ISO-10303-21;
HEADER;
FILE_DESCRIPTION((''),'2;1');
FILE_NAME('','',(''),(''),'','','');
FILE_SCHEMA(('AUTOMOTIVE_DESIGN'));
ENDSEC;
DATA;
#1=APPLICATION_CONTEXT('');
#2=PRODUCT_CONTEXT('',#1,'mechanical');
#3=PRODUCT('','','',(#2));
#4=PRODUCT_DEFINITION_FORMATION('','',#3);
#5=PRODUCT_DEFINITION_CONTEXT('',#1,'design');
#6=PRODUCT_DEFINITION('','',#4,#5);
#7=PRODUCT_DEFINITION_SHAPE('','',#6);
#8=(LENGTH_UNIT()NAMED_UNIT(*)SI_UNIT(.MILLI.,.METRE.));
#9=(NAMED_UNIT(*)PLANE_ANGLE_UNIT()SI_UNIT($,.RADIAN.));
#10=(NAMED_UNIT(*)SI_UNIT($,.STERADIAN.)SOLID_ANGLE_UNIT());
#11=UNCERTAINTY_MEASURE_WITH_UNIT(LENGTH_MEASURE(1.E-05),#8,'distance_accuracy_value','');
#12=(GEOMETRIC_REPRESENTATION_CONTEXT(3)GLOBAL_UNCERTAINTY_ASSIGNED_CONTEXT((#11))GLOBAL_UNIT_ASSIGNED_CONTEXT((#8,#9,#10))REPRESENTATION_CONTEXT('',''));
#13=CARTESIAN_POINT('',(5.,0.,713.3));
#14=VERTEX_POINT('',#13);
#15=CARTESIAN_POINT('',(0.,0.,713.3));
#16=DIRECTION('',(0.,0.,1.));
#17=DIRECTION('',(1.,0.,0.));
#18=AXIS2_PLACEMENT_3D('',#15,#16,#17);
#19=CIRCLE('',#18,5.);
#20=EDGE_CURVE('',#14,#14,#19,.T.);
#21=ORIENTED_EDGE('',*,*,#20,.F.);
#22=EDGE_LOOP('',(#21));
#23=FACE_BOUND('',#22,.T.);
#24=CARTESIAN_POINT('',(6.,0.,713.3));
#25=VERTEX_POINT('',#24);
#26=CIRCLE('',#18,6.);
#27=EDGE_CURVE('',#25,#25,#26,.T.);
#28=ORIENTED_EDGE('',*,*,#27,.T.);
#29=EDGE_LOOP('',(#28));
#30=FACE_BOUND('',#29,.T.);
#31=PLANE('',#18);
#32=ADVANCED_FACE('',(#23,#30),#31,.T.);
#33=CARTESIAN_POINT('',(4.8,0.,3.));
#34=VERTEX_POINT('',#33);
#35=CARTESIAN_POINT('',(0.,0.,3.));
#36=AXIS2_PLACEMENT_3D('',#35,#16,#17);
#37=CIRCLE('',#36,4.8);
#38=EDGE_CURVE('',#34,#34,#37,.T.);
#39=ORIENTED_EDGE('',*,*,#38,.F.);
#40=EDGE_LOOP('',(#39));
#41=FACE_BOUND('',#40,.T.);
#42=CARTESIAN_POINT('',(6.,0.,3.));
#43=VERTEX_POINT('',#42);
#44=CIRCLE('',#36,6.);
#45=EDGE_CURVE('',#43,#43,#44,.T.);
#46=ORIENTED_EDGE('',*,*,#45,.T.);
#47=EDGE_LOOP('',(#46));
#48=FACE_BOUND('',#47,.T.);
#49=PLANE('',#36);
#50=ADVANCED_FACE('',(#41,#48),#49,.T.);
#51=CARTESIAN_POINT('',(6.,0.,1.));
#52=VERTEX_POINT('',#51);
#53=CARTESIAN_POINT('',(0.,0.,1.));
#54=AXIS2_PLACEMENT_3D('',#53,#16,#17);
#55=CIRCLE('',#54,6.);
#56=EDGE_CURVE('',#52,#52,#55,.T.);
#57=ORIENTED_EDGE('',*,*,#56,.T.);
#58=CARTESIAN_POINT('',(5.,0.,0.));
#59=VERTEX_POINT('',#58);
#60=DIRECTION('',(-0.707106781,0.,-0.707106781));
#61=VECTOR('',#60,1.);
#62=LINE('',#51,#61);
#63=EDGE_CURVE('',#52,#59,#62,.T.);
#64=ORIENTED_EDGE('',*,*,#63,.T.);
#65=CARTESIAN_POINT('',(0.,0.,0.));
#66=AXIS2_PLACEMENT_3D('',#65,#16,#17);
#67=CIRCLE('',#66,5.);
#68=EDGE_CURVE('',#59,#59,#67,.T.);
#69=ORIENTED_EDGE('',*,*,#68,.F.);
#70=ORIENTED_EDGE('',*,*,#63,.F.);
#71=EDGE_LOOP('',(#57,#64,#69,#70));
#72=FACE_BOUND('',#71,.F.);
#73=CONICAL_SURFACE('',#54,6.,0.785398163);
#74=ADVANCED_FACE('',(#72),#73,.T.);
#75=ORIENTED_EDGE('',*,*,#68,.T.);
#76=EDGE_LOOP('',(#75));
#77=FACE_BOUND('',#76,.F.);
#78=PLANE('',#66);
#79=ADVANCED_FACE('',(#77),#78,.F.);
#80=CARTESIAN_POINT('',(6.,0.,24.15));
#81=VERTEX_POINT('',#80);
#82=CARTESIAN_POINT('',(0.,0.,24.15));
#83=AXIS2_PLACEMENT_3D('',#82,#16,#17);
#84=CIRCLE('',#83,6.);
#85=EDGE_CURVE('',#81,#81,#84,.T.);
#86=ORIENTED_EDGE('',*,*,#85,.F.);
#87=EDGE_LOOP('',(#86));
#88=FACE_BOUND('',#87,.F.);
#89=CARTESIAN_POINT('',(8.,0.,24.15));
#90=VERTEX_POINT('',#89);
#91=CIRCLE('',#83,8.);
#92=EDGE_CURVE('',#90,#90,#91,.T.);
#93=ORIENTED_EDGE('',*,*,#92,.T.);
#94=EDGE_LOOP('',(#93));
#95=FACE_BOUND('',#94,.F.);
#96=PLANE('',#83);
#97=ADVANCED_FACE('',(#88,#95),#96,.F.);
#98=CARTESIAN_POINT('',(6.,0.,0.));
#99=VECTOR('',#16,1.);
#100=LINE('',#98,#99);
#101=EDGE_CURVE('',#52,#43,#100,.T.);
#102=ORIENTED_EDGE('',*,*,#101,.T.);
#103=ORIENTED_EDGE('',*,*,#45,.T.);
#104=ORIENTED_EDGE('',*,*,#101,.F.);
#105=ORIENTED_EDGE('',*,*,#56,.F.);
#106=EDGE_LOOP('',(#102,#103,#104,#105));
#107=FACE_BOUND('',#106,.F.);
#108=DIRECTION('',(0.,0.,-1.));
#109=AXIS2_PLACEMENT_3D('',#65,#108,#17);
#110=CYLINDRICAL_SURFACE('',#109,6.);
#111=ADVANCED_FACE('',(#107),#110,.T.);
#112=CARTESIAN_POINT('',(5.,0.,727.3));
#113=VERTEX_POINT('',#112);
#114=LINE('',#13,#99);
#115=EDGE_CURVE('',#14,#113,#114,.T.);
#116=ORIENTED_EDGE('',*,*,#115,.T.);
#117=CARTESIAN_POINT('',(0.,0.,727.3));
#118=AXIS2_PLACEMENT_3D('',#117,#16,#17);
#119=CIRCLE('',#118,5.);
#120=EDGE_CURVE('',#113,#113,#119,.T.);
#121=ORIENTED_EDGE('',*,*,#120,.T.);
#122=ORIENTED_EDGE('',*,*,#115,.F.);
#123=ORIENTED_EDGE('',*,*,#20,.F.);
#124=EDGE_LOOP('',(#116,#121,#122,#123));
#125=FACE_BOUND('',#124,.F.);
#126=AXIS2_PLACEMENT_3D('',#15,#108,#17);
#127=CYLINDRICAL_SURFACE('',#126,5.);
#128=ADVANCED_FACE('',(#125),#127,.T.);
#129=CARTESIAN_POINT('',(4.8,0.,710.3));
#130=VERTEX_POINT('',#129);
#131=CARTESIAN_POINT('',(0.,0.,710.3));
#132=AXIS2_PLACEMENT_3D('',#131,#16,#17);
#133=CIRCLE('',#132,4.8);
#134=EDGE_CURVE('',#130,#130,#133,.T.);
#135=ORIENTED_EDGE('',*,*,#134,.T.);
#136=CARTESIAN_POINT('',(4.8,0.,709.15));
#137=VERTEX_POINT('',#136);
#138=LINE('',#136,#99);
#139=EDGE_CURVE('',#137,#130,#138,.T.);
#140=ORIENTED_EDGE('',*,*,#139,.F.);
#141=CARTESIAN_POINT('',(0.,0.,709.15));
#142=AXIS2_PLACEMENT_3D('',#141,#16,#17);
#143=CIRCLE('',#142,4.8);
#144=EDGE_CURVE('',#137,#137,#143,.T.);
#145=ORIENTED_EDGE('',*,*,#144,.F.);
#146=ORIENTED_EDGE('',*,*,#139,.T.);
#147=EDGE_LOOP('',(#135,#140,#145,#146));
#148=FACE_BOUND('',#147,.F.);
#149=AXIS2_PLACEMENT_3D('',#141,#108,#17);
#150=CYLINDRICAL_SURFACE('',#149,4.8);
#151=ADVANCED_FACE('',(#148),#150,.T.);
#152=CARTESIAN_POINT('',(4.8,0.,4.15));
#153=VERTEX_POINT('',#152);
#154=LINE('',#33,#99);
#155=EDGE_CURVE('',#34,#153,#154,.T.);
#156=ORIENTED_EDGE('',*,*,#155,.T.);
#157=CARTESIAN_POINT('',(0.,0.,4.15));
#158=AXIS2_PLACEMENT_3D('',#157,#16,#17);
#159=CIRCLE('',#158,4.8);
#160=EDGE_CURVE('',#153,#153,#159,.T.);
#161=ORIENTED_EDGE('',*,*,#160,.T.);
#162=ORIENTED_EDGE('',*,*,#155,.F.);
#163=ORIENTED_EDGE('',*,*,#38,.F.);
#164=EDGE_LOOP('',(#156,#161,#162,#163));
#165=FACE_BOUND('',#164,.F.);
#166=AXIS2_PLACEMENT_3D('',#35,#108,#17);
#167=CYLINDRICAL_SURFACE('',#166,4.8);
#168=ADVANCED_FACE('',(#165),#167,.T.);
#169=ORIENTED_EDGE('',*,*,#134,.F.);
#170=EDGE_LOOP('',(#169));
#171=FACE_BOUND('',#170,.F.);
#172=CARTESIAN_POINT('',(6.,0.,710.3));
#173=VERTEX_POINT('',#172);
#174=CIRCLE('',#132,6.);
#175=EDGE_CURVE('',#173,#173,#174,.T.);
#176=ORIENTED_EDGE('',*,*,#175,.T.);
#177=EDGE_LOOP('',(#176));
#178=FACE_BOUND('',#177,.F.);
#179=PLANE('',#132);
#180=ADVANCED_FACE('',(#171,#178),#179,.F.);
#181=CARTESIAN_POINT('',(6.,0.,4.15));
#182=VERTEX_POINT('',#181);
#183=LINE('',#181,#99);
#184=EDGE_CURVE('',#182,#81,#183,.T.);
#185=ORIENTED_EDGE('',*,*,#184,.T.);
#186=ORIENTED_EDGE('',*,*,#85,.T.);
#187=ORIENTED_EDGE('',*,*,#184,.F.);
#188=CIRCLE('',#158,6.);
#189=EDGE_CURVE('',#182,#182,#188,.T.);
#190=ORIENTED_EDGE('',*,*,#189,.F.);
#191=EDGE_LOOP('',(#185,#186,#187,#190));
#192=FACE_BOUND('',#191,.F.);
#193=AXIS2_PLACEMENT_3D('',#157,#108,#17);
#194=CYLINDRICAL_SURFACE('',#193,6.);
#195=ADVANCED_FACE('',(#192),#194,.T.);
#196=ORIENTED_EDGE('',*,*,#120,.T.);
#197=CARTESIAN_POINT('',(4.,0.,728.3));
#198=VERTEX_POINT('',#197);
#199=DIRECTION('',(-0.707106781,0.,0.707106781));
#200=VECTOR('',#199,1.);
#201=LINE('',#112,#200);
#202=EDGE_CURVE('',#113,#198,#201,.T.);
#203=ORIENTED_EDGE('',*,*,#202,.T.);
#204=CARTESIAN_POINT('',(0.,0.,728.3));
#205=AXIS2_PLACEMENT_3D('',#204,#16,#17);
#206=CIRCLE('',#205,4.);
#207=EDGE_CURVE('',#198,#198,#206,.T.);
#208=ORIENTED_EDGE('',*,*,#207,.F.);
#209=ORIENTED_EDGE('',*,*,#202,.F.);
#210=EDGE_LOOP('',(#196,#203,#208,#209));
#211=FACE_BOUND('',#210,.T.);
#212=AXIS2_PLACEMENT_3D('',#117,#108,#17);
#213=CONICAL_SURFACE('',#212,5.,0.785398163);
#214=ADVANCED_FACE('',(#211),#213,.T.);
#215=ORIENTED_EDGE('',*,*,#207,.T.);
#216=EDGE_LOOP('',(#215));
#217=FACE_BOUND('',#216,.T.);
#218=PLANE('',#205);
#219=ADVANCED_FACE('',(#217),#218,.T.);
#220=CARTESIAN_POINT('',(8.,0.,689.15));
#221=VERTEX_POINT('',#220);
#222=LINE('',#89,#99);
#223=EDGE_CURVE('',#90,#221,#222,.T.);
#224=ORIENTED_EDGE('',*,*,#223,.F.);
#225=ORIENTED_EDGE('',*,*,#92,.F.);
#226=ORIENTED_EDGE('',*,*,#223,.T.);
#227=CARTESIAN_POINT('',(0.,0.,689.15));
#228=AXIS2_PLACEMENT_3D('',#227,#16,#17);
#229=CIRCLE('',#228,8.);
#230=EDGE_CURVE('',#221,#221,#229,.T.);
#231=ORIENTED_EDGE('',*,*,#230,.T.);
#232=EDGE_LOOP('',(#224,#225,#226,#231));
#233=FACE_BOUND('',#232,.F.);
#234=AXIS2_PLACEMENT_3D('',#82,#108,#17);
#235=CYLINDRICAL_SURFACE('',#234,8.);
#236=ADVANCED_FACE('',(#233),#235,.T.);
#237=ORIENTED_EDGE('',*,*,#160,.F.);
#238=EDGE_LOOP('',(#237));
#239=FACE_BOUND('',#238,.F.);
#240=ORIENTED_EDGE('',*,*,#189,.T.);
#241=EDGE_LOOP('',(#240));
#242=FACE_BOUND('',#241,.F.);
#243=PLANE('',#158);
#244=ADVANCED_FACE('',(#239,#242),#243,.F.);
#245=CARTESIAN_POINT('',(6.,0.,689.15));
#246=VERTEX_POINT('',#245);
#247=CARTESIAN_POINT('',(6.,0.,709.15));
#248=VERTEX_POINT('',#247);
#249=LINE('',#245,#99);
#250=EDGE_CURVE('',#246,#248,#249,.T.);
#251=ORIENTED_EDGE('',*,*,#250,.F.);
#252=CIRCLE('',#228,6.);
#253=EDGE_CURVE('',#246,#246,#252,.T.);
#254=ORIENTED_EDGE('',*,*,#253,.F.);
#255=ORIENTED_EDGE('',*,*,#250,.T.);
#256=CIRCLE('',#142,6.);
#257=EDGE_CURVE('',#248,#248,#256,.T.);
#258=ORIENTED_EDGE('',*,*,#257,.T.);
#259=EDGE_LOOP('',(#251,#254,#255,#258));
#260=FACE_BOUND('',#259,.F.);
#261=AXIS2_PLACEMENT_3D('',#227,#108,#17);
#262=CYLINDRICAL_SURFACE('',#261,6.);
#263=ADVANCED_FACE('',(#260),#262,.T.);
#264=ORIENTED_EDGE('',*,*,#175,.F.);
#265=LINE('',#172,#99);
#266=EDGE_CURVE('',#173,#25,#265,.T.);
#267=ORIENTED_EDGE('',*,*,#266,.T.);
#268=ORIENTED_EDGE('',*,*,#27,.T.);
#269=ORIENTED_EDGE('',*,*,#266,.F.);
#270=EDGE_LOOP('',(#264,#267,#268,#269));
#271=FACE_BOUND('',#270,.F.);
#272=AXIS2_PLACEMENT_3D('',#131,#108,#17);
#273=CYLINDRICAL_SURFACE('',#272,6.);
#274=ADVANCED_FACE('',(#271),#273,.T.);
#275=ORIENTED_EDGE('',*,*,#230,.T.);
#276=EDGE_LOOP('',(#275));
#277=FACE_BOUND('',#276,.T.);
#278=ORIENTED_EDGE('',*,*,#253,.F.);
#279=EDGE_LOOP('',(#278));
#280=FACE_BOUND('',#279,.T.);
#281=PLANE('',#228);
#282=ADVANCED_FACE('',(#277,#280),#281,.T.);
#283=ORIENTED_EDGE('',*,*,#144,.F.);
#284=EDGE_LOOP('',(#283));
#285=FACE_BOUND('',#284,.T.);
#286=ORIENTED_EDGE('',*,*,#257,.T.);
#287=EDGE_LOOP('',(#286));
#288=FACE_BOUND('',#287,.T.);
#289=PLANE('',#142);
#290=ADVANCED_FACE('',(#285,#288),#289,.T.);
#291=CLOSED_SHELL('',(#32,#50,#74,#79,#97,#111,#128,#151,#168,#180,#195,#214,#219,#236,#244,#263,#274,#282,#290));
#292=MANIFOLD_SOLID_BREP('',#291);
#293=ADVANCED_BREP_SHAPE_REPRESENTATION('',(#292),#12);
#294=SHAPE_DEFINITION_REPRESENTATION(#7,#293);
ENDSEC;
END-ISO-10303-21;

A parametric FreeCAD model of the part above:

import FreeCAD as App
import Part
import Sketcher
from FreeCAD import Vector
Q = App.Units.Quantity


def edges_at(feature, points):
    """Names of the edges that pass closest to the given points."""
    edges = feature.Shape.Edges
    near = lambda p: min(range(len(edges)), key=lambda i: edges[i].distToShape(Part.Vertex(*p))[0])
    return sorted({f"Edge{near(p) + 1}" for p in points})

doc = App.newDocument("Part")
body = doc.addObject("PartDesign::Body", "Body")

sketch1 = doc.addObject("Sketcher::SketchObject", "Sketch")
body.addObject(sketch1)
sketch1.AttachmentSupport = (doc.XY_Plane, [""])
sketch1.MapMode = "FlatFace"
sketch1.addGeometry(Part.Circle(Vector(0, 0, 0), Vector(0, 0, 1), 6), False)
sketch1.addConstraint([
    Sketcher.Constraint("Coincident", 0, 3, -1, 1),
    Sketcher.Constraint("Diameter", 0, Q("12 mm")),
])
pad1 = doc.addObject("PartDesign::Pad", "Pad")
body.addObject(pad1)
pad1.Profile = sketch1
pad1.Length = 3

sketch2 = doc.addObject("Sketcher::SketchObject", "Sketch001")
body.addObject(sketch2)
sketch2.AttachmentSupport = (doc.XY_Plane, [""])
sketch2.MapMode = "FlatFace"
sketch2.AttachmentOffset = App.Placement(Vector(0, 0, 3), App.Rotation())
sketch2.addGeometry(Part.Circle(Vector(0, 0, 0), Vector(0, 0, 1), 4.8), False)
sketch2.addConstraint([
    Sketcher.Constraint("Coincident", 0, 3, -1, 1),
    Sketcher.Constraint("Diameter", 0, Q("9.6 mm")),
])
pad2 = doc.addObject("PartDesign::Pad", "Pad001")
body.addObject(pad2)
pad2.Profile = sketch2
pad2.Length = 1.15

sketch3 = doc.addObject("Sketcher::SketchObject", "Sketch002")
body.addObject(sketch3)
sketch3.AttachmentSupport = (doc.XY_Plane, [""])
sketch3.MapMode = "FlatFace"
sketch3.AttachmentOffset = App.Placement(Vector(0, 0, 4.15), App.Rotation())
sketch3.addGeometry(Part.Circle(Vector(0, 0, 0), Vector(0, 0, 1), 6), False)
sketch3.addConstraint([
    Sketcher.Constraint("Coincident", 0, 3, -1, 1),
    Sketcher.Constraint("Diameter", 0, Q("12 mm")),
])
pad3 = doc.addObject("PartDesign::Pad", "Pad002")
body.addObject(pad3)
pad3.Profile = sketch3
pad3.Length = 20

sketch4 = doc.addObject("Sketcher::SketchObject", "Sketch003")
body.addObject(sketch4)
sketch4.AttachmentSupport = (doc.XY_Plane, [""])
sketch4.MapMode = "FlatFace"
sketch4.AttachmentOffset = App.Placement(Vector(0, 0, 24.15), App.Rotation())
sketch4.addGeometry(Part.Circle(Vector(0, 0, 0), Vector(0, 0, 1), 8), False)
sketch4.addConstraint([
    Sketcher.Constraint("Coincident", 0, 3, -1, 1),
    Sketcher.Constraint("Diameter", 0, Q("16 mm")),
])
pad4 = doc.addObject("PartDesign::Pad", "Pad003")
body.addObject(pad4)
pad4.Profile = sketch4
pad4.Length = 665

sketch5 = doc.addObject("Sketcher::SketchObject", "Sketch004")
body.addObject(sketch5)
sketch5.AttachmentSupport = (doc.XY_Plane, [""])
sketch5.MapMode = "FlatFace"
sketch5.AttachmentOffset = App.Placement(Vector(0, 0, 689.15), App.Rotation())
sketch5.addGeometry(Part.Circle(Vector(0, 0, 0), Vector(0, 0, 1), 6), False)
sketch5.addConstraint([
    Sketcher.Constraint("Coincident", 0, 3, -1, 1),
    Sketcher.Constraint("Diameter", 0, Q("12 mm")),
])
pad5 = doc.addObject("PartDesign::Pad", "Pad004")
body.addObject(pad5)
pad5.Profile = sketch5
pad5.Length = 20

sketch6 = doc.addObject("Sketcher::SketchObject", "Sketch005")
body.addObject(sketch6)
sketch6.AttachmentSupport = (doc.XY_Plane, [""])
sketch6.MapMode = "FlatFace"
sketch6.AttachmentOffset = App.Placement(Vector(0, 0, 709.15), App.Rotation())
sketch6.addGeometry(Part.Circle(Vector(0, 0, 0), Vector(0, 0, 1), 4.8), False)
sketch6.addConstraint([
    Sketcher.Constraint("Coincident", 0, 3, -1, 1),
    Sketcher.Constraint("Diameter", 0, Q("9.6 mm")),
])
pad6 = doc.addObject("PartDesign::Pad", "Pad005")
body.addObject(pad6)
pad6.Profile = sketch6
pad6.Length = 1.15

sketch7 = doc.addObject("Sketcher::SketchObject", "Sketch006")
body.addObject(sketch7)
sketch7.AttachmentSupport = (doc.XY_Plane, [""])
sketch7.MapMode = "FlatFace"
sketch7.AttachmentOffset = App.Placement(Vector(0, 0, 710.3), App.Rotation())
sketch7.addGeometry(Part.Circle(Vector(0, 0, 0), Vector(0, 0, 1), 6), False)
sketch7.addConstraint([
    Sketcher.Constraint("Coincident", 0, 3, -1, 1),
    Sketcher.Constraint("Diameter", 0, Q("12 mm")),
])
pad7 = doc.addObject("PartDesign::Pad", "Pad006")
body.addObject(pad7)
pad7.Profile = sketch7
pad7.Length = 3

sketch8 = doc.addObject("Sketcher::SketchObject", "Sketch007")
body.addObject(sketch8)
sketch8.AttachmentSupport = (doc.XY_Plane, [""])
sketch8.MapMode = "FlatFace"
sketch8.AttachmentOffset = App.Placement(Vector(0, 0, 713.3), App.Rotation())
sketch8.addGeometry(Part.Circle(Vector(0, 0, 0), Vector(0, 0, 1), 5), False)
sketch8.addConstraint([
    Sketcher.Constraint("Coincident", 0, 3, -1, 1),
    Sketcher.Constraint("Diameter", 0, Q("10 mm")),
])
pad8 = doc.addObject("PartDesign::Pad", "Pad007")
body.addObject(pad8)
pad8.Profile = sketch8
pad8.Length = 15
doc.recompute()

chamfer = doc.addObject("PartDesign::Chamfer", "Chamfer")
body.addObject(chamfer)
chamfer.Base = (pad8, edges_at(pad8, [(-5, 0, 728.3), (-6, 0, 0)]))
chamfer.Size = 1

doc.recompute()
